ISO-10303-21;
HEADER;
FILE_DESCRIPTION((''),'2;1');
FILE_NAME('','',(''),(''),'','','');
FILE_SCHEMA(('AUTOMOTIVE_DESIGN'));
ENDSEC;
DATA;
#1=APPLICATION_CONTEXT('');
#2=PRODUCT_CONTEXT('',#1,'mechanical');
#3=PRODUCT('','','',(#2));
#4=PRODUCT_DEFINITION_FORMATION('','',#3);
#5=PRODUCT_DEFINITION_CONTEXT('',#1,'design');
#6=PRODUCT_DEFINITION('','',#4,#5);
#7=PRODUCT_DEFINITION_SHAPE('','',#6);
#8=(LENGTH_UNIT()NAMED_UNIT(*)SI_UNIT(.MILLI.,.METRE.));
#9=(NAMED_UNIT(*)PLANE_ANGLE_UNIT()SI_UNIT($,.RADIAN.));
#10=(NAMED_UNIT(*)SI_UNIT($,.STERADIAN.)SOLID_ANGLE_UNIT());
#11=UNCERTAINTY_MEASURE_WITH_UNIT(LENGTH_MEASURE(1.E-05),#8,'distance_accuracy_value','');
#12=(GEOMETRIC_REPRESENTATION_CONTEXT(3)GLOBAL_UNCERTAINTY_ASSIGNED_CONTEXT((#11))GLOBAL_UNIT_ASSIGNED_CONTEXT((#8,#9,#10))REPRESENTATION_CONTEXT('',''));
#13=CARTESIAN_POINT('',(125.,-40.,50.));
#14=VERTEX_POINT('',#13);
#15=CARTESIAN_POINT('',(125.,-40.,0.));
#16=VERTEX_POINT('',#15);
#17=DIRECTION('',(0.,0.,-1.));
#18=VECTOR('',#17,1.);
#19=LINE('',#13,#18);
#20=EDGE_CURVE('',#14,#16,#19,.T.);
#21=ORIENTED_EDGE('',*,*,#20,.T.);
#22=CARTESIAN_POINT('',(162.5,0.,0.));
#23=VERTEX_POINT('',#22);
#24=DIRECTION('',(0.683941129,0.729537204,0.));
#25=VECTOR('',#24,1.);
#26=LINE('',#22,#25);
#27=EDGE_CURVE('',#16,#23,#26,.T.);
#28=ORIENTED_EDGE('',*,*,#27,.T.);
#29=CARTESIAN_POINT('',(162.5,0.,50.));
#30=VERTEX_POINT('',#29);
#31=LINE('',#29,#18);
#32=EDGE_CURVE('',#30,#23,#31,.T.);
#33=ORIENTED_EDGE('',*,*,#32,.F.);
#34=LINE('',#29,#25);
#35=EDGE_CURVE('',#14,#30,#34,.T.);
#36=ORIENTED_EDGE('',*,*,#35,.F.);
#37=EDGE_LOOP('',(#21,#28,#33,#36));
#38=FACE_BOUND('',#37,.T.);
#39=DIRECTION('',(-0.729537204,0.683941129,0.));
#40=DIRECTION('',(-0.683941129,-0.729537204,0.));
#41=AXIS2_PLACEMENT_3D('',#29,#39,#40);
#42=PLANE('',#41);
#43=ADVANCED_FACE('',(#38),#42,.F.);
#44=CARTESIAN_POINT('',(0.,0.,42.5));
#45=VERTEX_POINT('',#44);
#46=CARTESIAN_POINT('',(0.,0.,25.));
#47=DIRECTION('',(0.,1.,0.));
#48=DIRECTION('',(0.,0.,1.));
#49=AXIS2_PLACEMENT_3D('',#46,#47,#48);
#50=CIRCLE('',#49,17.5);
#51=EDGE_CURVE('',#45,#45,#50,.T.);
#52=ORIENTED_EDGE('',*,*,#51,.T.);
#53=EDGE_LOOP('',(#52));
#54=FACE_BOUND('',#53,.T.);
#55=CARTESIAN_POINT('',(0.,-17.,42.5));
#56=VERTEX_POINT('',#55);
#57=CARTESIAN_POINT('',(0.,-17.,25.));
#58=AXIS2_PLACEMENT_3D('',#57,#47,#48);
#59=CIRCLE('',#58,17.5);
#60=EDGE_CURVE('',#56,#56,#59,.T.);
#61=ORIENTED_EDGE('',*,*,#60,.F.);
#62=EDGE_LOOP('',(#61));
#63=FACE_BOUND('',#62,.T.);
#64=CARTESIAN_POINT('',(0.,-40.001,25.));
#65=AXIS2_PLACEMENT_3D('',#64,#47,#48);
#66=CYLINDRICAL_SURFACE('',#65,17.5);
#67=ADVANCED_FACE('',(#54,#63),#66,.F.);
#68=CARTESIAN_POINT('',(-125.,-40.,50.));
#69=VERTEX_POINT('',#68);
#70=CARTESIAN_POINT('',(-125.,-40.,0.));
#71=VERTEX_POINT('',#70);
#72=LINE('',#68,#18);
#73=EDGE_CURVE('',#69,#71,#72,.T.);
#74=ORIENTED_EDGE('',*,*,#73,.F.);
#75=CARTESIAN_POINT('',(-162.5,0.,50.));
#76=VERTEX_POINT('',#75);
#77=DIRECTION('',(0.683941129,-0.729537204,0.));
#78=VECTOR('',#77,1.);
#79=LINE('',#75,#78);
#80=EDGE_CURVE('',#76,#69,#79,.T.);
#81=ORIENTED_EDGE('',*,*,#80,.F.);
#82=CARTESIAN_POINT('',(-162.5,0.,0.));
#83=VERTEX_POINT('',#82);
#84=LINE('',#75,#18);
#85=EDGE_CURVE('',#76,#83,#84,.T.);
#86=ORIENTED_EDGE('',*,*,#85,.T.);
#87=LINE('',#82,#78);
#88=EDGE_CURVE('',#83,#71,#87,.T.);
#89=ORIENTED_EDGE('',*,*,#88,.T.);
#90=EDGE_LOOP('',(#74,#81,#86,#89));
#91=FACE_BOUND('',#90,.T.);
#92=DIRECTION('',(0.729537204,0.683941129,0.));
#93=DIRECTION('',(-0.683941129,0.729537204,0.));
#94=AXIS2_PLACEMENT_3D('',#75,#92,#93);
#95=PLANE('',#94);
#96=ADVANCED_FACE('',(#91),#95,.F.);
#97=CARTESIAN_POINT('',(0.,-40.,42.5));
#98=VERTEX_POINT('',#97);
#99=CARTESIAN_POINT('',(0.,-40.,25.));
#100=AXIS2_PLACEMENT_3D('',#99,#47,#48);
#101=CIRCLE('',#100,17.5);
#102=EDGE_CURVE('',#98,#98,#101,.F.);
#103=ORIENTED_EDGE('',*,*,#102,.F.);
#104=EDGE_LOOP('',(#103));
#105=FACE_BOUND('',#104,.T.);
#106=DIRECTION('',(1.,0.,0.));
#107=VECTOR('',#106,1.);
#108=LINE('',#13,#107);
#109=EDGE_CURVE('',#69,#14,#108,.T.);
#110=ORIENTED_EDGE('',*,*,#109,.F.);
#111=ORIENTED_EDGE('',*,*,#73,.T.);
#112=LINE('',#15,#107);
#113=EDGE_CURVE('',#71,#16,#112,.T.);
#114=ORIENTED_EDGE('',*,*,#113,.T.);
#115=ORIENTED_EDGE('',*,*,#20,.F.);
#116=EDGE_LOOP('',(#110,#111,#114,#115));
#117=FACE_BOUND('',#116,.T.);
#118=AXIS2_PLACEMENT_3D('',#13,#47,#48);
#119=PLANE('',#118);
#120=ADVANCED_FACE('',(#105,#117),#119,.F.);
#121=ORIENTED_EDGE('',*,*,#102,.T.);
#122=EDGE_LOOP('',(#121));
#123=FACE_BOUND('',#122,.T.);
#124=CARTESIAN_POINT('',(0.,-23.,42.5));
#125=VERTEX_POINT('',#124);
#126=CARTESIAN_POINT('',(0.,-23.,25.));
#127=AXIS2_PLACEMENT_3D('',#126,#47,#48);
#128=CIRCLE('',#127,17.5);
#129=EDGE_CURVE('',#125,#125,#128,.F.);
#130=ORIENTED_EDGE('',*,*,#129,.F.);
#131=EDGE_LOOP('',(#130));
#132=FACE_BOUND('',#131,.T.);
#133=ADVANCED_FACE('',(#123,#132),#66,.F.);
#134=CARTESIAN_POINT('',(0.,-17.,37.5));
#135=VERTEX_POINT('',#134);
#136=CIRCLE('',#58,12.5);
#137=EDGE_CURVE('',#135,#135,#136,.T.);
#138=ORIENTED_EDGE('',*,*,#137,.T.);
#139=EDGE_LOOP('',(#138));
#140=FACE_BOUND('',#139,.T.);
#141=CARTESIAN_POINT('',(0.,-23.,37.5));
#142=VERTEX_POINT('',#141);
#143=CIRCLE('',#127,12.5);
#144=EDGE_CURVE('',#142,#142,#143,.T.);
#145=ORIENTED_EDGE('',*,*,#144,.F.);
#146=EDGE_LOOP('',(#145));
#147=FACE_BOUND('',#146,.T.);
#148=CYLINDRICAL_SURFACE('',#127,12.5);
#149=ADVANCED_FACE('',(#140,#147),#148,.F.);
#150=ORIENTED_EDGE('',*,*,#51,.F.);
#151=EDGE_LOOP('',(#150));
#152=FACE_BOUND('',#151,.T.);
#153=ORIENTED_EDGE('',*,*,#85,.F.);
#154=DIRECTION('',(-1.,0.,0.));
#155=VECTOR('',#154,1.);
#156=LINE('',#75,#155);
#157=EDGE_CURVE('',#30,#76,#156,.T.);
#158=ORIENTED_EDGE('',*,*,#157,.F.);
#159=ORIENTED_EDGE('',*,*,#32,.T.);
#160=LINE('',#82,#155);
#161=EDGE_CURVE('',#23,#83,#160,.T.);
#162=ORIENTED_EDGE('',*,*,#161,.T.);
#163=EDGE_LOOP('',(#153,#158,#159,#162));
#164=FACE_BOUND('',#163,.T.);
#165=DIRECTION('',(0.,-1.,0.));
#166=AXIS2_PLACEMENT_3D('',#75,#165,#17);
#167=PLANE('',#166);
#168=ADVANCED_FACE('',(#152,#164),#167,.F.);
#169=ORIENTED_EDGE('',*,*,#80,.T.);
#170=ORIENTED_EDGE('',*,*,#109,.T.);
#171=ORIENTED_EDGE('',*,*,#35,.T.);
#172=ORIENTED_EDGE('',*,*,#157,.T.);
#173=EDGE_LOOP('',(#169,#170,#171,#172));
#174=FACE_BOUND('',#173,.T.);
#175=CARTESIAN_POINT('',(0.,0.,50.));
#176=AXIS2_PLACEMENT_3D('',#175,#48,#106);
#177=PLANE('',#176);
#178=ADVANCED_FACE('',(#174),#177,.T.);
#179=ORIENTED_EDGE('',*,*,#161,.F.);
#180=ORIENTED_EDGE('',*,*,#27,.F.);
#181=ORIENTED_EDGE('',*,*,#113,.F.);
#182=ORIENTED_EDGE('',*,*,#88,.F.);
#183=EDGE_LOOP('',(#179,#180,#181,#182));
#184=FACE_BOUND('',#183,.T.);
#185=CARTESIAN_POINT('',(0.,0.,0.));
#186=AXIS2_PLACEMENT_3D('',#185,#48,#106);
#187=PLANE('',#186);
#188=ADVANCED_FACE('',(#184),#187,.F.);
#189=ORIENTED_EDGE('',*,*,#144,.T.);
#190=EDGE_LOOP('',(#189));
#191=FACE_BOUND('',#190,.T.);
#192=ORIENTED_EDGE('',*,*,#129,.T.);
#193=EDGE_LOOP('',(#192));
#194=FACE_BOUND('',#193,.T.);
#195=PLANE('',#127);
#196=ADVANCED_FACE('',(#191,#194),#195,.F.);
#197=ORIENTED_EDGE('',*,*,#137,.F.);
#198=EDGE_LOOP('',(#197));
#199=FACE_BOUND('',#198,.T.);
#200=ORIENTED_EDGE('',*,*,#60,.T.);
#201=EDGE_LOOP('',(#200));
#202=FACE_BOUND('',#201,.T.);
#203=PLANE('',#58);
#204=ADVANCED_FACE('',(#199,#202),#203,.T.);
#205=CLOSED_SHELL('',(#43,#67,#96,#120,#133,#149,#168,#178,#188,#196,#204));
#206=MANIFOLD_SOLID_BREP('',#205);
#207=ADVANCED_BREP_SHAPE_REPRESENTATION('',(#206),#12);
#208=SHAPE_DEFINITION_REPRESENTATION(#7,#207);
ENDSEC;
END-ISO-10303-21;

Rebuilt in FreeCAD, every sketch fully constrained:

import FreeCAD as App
import Part
import Sketcher
from FreeCAD import Vector


def add_polygon(sketch, points):
    """Adds a closed chain of lines whose ends are joined by coincident constraints."""
    first, n = sketch.GeometryCount, len(points)
    for a, b in zip(points, points[1:] + points[:1]):
        sketch.addGeometry(Part.LineSegment(App.Vector(*a, 0), App.Vector(*b, 0)), False)
    for i in range(n):
        sketch.addConstraint(Sketcher.Constraint("Coincident", first + i, 2, first + (i + 1) % n, 1))

doc = App.newDocument("Part")
body = doc.addObject("PartDesign::Body", "Body")

# Sketch on XY plane
sketch1 = doc.addObject("Sketcher::SketchObject", "Sketch")
body.addObject(sketch1)
sketch1.AttachmentSupport = (doc.XY_Plane, [""])
sketch1.MapMode = "FlatFace"
add_polygon(sketch1, [(162, 0), (-162, 0), (-125, -40), (125, -40)])  # lines 0-3
sketch1.addConstraint([
    Sketcher.Constraint("Horizontal", 0),
    Sketcher.Constraint("Horizontal", 2),
    Sketcher.Constraint("Symmetric", 0, 2, 3, 2, -1, 1),
    Sketcher.Constraint("Equal", 1, 3),
    Sketcher.Constraint("DistanceX", 0, 2, 0, 1, 325.0),
    Sketcher.Constraint("DistanceX", 2, 1, 2, 2, 250.0),
    Sketcher.Constraint("DistanceY", 1, 2, -1, 1, 40.0),
])
pad1 = doc.addObject("PartDesign::Pad", "Pad")
body.addObject(pad1)
pad1.Profile = sketch1
pad1.Length = 50

# Sketch on XZ plane
sketch2 = doc.addObject("Sketcher::SketchObject", "Sketch001")
body.addObject(sketch2)
sketch2.AttachmentSupport = (doc.XZ_Plane, [""])
sketch2.MapMode = "FlatFace"
sketch2.addGeometry(Part.Circle(Vector(0, 25, 0), Vector(0, 0, 1), 18), False)
sketch2.addConstraint([
    Sketcher.Constraint("PointOnObject", 0, 3, -2),
    Sketcher.Constraint("Diameter", 0, 35.0),
    Sketcher.Constraint("DistanceY", -1, 1, 0, 3, 25.0),
])
pocket1 = doc.addObject("PartDesign::Pocket", "Pocket")
body.addObject(pocket1)
pocket1.Profile = sketch2
pocket1.Type = "UpToFirst"
pocket1.Reversed = True

# Sketch on XZ plane
sketch3 = doc.addObject("Sketcher::SketchObject", "Sketch002")
body.addObject(sketch3)
sketch3.AttachmentSupport = (doc.XZ_Plane, [""])
sketch3.MapMode = "FlatFace"
sketch3.AttachmentOffset = App.Placement(Vector(0, 0, 20), App.Rotation())
sketch3.addGeometry([
    Part.Circle(Vector(0, 25, 0), Vector(0, 0, 1), 18),
    Part.Circle(Vector(0, 25, 0), Vector(0, 0, 1), 12),
], False)
sketch3.addConstraint([
    Sketcher.Constraint("Coincident", 1, 3, 0, 3),
    Sketcher.Constraint("PointOnObject", 0, 3, -2),
    Sketcher.Constraint("Diameter", 0, 35.0),
    Sketcher.Constraint("Diameter", 1, 25.0),
    Sketcher.Constraint("DistanceY", -1, 1, 0, 3, 25.0),
])
pad2 = doc.addObject("PartDesign::Pad", "Pad001")
body.addObject(pad2)
pad2.Profile = sketch3
pad2.Type = "TwoLengths"
pad2.Length = 3
pad2.Length2 = 3
pad2.Reversed = True

doc.recompute()
